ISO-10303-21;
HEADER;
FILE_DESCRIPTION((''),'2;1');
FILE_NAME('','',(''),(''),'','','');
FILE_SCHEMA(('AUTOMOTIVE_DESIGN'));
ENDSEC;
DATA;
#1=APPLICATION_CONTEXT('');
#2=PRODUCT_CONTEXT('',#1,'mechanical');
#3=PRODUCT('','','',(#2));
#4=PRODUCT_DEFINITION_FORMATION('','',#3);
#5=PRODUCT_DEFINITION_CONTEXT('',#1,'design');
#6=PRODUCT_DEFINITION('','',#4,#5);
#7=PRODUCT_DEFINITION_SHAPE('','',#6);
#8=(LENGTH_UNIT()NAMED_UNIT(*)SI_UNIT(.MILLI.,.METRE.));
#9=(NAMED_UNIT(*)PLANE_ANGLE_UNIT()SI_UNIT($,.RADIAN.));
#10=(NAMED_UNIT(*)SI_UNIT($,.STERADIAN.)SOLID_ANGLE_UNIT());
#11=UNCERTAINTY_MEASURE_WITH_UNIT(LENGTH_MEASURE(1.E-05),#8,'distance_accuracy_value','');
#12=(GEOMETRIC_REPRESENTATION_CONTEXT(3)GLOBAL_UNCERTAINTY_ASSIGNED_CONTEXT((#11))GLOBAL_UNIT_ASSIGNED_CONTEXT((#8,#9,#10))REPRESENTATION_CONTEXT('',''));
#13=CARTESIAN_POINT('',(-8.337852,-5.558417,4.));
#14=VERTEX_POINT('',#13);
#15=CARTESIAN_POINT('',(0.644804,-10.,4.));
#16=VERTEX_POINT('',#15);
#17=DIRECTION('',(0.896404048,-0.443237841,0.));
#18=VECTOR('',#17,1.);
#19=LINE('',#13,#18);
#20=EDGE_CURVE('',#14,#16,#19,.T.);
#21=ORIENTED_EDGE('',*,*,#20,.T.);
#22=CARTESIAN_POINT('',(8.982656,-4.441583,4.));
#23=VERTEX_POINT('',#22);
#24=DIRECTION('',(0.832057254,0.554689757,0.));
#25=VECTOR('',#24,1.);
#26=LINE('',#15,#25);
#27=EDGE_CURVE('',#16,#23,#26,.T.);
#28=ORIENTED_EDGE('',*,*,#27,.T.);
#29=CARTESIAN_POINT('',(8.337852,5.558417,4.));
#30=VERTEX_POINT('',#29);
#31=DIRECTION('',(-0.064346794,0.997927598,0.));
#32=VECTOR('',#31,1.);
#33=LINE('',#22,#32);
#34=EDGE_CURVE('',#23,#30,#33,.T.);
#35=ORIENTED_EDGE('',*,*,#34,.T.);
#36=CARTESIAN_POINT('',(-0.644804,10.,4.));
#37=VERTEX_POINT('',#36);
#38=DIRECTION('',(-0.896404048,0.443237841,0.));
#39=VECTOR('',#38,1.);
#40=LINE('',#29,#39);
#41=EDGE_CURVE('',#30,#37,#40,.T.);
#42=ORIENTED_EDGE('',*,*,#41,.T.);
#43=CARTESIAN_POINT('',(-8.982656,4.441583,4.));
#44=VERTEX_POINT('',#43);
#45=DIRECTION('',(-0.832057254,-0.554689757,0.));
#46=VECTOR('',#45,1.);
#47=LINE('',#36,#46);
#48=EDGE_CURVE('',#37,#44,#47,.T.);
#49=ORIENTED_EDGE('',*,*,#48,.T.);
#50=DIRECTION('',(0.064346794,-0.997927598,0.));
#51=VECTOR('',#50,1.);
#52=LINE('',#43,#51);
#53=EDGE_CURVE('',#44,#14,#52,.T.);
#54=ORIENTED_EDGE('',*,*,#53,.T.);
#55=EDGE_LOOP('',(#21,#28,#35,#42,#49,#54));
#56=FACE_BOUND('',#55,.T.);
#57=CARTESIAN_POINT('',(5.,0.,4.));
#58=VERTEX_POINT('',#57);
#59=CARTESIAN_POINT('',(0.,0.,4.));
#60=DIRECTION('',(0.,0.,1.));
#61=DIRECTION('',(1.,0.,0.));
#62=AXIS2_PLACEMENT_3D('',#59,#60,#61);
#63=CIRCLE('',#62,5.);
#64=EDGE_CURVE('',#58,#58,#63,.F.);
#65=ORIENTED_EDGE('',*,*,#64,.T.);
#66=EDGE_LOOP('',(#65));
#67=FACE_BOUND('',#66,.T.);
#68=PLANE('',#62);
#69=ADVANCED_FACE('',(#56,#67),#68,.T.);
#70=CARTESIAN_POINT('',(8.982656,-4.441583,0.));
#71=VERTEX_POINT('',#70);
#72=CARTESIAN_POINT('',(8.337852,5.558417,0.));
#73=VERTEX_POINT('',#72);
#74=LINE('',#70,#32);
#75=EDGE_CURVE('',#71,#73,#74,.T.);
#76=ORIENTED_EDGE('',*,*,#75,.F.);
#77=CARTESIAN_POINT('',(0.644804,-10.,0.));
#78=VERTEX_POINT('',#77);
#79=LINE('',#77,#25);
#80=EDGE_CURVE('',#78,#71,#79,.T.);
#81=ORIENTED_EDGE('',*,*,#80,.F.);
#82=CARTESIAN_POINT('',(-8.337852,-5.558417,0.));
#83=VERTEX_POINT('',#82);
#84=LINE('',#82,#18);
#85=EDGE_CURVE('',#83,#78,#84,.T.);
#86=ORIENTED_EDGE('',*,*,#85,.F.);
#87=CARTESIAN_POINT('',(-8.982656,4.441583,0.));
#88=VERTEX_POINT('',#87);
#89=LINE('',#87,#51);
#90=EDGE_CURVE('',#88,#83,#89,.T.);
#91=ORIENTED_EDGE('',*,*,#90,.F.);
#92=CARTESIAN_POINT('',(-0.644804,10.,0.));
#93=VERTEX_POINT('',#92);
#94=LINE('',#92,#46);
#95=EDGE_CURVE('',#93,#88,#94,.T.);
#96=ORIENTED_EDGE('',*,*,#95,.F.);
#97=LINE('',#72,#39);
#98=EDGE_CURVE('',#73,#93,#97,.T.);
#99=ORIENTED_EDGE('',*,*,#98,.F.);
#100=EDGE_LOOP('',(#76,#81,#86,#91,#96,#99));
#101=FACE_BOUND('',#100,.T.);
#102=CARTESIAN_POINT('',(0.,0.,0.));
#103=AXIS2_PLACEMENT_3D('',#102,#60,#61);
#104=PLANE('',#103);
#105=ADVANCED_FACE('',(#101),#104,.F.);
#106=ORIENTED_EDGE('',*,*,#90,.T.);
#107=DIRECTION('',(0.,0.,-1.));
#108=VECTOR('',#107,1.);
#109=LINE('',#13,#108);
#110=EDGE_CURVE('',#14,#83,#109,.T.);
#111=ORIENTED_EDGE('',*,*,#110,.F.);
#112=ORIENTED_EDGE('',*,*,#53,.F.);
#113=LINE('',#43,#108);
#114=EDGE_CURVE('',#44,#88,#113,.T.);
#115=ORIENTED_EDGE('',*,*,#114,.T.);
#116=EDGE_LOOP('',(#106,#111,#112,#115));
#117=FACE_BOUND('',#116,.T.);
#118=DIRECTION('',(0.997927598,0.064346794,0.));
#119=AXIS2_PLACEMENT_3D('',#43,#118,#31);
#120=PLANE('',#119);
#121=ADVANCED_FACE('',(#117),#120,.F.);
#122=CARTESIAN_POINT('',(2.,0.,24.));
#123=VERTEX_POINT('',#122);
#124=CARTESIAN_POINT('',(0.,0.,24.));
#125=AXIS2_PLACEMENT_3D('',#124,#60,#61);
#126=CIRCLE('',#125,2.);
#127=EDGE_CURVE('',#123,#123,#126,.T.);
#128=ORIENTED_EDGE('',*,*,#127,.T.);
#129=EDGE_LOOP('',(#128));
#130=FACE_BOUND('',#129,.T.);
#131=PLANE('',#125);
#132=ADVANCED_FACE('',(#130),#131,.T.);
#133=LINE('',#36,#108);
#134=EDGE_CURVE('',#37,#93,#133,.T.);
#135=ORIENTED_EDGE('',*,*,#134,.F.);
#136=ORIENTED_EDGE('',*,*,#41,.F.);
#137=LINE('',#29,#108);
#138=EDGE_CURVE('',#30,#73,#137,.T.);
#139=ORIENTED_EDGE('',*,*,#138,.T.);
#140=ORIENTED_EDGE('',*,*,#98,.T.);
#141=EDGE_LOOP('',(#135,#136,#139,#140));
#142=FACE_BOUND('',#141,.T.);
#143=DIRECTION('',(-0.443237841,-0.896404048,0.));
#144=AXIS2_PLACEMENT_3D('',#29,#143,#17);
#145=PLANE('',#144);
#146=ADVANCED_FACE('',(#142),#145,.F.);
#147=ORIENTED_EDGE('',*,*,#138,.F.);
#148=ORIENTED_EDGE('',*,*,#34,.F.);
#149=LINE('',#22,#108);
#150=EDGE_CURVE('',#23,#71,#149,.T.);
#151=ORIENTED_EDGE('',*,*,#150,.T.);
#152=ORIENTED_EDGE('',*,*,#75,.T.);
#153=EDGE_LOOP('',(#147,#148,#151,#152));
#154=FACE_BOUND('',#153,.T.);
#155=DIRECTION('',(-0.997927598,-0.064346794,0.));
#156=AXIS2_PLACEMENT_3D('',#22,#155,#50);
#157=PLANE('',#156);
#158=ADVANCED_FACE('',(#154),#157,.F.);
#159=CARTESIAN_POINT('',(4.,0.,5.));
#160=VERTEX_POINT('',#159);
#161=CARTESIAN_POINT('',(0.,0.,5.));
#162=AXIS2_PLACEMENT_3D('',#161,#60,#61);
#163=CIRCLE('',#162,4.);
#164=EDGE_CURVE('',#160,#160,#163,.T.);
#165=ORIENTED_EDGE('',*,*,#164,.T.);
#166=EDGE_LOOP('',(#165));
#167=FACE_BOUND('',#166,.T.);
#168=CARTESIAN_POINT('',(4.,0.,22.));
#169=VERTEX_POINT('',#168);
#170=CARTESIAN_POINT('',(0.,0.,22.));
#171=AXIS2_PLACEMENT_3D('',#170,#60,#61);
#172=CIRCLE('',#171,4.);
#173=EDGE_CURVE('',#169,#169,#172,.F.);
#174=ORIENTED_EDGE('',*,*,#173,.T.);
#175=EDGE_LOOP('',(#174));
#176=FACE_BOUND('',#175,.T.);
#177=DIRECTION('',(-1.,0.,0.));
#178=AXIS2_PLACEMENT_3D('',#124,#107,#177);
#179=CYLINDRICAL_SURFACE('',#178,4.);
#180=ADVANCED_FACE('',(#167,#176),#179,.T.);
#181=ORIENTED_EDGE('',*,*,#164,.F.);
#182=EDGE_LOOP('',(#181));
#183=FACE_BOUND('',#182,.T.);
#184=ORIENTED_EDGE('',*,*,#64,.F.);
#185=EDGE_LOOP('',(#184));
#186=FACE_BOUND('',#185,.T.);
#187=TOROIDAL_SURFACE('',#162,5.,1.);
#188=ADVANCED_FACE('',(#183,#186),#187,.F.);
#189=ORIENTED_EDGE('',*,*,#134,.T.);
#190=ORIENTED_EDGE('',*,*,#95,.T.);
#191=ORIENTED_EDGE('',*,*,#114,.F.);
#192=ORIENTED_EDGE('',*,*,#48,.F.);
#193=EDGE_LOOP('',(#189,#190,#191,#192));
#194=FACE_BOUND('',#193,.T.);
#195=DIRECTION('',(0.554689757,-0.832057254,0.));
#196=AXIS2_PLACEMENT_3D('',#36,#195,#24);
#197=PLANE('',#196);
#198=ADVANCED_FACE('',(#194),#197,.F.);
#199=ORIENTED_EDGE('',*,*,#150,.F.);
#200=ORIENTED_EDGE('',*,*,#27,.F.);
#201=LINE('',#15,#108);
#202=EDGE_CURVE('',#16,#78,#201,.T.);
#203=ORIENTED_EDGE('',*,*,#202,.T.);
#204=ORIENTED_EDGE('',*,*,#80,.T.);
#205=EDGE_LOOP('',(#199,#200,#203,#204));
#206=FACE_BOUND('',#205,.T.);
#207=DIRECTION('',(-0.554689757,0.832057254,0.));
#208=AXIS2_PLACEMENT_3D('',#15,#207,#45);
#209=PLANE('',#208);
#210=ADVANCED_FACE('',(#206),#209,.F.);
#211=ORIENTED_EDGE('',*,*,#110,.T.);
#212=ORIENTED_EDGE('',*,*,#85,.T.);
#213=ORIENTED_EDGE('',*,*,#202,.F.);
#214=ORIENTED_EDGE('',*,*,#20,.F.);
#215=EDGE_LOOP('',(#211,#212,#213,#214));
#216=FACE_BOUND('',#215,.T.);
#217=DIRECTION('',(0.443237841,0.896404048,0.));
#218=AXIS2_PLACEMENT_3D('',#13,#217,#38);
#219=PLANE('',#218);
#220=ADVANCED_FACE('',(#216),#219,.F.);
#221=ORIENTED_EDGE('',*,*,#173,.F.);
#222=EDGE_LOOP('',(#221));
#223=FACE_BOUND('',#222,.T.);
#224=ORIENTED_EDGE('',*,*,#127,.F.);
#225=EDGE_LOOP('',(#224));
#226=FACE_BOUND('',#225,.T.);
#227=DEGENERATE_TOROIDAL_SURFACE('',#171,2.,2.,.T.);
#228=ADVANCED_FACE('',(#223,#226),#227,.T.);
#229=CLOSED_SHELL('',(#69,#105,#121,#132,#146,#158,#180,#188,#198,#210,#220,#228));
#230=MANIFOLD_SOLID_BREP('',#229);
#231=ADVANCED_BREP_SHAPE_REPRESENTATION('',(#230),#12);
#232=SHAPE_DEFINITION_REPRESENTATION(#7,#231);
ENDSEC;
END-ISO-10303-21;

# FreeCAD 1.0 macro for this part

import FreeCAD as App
import Part
import Sketcher
Q = App.Units.Quantity


def edges_at(feature, points):
    """Names of the edges that pass closest to the given points."""
    edges = feature.Shape.Edges
    near = lambda p: min(range(len(edges)), key=lambda i: edges[i].distToShape(Part.Vertex(*p))[0])
    return sorted({f"Edge{near(p) + 1}" for p in points})

doc = App.newDocument("Part")
params = doc.addObject("Spreadsheet::Sheet", "Params")
for row, (alias, value) in enumerate([
    ("pad1_length", "4 mm"),
    ("sketch2_diameter", "8 mm"),
    ("pad2_length", "20 mm"),
    ("fillet_radius", "1 mm"),
    ("fillet2_radius", "2 mm"),
], start=1):
    params.set(f"A{row}", alias)
    params.set(f"B{row}", "=" + value)
    params.setAlias(f"B{row}", alias)

body = doc.addObject("PartDesign::Body", "Body")

# Sketch on XY plane
sketch1 = doc.addObject("Sketcher::SketchObject", "Sketch")
body.addObject(sketch1)
sketch1.AttachmentSupport = (doc.XY_Plane, [""])
sketch1.MapMode = "FlatFace"
sketch1.addGeometry([
    Part.LineSegment(App.Vector(-8, -6, 0), App.Vector(1, -10, 0)),  # 0
    Part.LineSegment(App.Vector(1, -10, 0), App.Vector(9, -4, 0)),  # 1
    Part.LineSegment(App.Vector(9, -4, 0), App.Vector(8, 6, 0)),  # 2
    Part.LineSegment(App.Vector(8, 6, 0), App.Vector(-1, 10, 0)),  # 3
    Part.LineSegment(App.Vector(-1, 10, 0), App.Vector(-9, 4, 0)),  # 4
    Part.LineSegment(App.Vector(-9, 4, 0), App.Vector(-8, -6, 0)),  # 5
], False)
sketch1.addConstraint([
    Sketcher.Constraint("Coincident", 0, 2, 1, 1),
    Sketcher.Constraint("Coincident", 1, 2, 2, 1),
    Sketcher.Constraint("Coincident", 2, 2, 3, 1),
    Sketcher.Constraint("Coincident", 3, 2, 4, 1),
    Sketcher.Constraint("Coincident", 4, 2, 5, 1),
    Sketcher.Constraint("Coincident", 5, 2, 0, 1),
    Sketcher.Constraint("Symmetric", 0, 2, 3, 2, -1, 1),
    Sketcher.Constraint("Symmetric", 1, 2, 4, 2, -1, 1),
    Sketcher.Constraint("Symmetric", 2, 2, 5, 2, -1, 1),
    Sketcher.Constraint("Equal", 0, 1),
    Sketcher.Constraint("Equal", 1, 2),
    Sketcher.Constraint("DistanceY", 0, 2, -1, 1, Q("10 mm")),
    Sketcher.Constraint("DistanceY", 1, 2, 2, 2, Q("10 mm")),
    Sketcher.Constraint("DistanceX", -1, 1, 2, 2, Q("8.337852 mm")),
    Sketcher.Constraint("DistanceX", 0, 2, 1, 2, Q("8.337852 mm")),
])
pad1 = doc.addObject("PartDesign::Pad", "Pad")
body.addObject(pad1)
pad1.Profile = sketch1
pad1.setExpression("Length", "Params.pad1_length")

# Sketch on XY plane
sketch2 = doc.addObject("Sketcher::SketchObject", "Sketch001")
body.addObject(sketch2)
sketch2.AttachmentSupport = (doc.XY_Plane, [""])
sketch2.MapMode = "FlatFace"
sketch2.AttachmentOffset = App.Placement(App.Vector(0, 0, 4), App.Rotation())
sketch2.addGeometry(Part.Circle(App.Vector(0, 0, 0), App.Vector(0, 0, 1), 4), False)
sketch2.addConstraint([
    Sketcher.Constraint("Coincident", 0, 3, -1, 1),
    Sketcher.Constraint("Diameter", 0, Q("8 mm")),
])
sketch2.setExpression("Constraints[1]", "Params.sketch2_diameter")
pad2 = doc.addObject("PartDesign::Pad", "Pad001")
body.addObject(pad2)
pad2.Profile = sketch2
pad2.setExpression("Length", "Params.pad2_length")
doc.recompute()

fillet = doc.addObject("PartDesign::Fillet", "Fillet")
body.addObject(fillet)
fillet.Base = (pad2, edges_at(pad2, [(-4, 0, 4)]))
fillet.setExpression("Radius", "Params.fillet_radius")
doc.recompute()

fillet2 = doc.addObject("PartDesign::Fillet", "Fillet001")
body.addObject(fillet2)
fillet2.Base = (fillet, edges_at(fillet, [(-4, 0, 24)]))
fillet2.setExpression("Radius", "Params.fillet2_radius")

doc.recompute()
